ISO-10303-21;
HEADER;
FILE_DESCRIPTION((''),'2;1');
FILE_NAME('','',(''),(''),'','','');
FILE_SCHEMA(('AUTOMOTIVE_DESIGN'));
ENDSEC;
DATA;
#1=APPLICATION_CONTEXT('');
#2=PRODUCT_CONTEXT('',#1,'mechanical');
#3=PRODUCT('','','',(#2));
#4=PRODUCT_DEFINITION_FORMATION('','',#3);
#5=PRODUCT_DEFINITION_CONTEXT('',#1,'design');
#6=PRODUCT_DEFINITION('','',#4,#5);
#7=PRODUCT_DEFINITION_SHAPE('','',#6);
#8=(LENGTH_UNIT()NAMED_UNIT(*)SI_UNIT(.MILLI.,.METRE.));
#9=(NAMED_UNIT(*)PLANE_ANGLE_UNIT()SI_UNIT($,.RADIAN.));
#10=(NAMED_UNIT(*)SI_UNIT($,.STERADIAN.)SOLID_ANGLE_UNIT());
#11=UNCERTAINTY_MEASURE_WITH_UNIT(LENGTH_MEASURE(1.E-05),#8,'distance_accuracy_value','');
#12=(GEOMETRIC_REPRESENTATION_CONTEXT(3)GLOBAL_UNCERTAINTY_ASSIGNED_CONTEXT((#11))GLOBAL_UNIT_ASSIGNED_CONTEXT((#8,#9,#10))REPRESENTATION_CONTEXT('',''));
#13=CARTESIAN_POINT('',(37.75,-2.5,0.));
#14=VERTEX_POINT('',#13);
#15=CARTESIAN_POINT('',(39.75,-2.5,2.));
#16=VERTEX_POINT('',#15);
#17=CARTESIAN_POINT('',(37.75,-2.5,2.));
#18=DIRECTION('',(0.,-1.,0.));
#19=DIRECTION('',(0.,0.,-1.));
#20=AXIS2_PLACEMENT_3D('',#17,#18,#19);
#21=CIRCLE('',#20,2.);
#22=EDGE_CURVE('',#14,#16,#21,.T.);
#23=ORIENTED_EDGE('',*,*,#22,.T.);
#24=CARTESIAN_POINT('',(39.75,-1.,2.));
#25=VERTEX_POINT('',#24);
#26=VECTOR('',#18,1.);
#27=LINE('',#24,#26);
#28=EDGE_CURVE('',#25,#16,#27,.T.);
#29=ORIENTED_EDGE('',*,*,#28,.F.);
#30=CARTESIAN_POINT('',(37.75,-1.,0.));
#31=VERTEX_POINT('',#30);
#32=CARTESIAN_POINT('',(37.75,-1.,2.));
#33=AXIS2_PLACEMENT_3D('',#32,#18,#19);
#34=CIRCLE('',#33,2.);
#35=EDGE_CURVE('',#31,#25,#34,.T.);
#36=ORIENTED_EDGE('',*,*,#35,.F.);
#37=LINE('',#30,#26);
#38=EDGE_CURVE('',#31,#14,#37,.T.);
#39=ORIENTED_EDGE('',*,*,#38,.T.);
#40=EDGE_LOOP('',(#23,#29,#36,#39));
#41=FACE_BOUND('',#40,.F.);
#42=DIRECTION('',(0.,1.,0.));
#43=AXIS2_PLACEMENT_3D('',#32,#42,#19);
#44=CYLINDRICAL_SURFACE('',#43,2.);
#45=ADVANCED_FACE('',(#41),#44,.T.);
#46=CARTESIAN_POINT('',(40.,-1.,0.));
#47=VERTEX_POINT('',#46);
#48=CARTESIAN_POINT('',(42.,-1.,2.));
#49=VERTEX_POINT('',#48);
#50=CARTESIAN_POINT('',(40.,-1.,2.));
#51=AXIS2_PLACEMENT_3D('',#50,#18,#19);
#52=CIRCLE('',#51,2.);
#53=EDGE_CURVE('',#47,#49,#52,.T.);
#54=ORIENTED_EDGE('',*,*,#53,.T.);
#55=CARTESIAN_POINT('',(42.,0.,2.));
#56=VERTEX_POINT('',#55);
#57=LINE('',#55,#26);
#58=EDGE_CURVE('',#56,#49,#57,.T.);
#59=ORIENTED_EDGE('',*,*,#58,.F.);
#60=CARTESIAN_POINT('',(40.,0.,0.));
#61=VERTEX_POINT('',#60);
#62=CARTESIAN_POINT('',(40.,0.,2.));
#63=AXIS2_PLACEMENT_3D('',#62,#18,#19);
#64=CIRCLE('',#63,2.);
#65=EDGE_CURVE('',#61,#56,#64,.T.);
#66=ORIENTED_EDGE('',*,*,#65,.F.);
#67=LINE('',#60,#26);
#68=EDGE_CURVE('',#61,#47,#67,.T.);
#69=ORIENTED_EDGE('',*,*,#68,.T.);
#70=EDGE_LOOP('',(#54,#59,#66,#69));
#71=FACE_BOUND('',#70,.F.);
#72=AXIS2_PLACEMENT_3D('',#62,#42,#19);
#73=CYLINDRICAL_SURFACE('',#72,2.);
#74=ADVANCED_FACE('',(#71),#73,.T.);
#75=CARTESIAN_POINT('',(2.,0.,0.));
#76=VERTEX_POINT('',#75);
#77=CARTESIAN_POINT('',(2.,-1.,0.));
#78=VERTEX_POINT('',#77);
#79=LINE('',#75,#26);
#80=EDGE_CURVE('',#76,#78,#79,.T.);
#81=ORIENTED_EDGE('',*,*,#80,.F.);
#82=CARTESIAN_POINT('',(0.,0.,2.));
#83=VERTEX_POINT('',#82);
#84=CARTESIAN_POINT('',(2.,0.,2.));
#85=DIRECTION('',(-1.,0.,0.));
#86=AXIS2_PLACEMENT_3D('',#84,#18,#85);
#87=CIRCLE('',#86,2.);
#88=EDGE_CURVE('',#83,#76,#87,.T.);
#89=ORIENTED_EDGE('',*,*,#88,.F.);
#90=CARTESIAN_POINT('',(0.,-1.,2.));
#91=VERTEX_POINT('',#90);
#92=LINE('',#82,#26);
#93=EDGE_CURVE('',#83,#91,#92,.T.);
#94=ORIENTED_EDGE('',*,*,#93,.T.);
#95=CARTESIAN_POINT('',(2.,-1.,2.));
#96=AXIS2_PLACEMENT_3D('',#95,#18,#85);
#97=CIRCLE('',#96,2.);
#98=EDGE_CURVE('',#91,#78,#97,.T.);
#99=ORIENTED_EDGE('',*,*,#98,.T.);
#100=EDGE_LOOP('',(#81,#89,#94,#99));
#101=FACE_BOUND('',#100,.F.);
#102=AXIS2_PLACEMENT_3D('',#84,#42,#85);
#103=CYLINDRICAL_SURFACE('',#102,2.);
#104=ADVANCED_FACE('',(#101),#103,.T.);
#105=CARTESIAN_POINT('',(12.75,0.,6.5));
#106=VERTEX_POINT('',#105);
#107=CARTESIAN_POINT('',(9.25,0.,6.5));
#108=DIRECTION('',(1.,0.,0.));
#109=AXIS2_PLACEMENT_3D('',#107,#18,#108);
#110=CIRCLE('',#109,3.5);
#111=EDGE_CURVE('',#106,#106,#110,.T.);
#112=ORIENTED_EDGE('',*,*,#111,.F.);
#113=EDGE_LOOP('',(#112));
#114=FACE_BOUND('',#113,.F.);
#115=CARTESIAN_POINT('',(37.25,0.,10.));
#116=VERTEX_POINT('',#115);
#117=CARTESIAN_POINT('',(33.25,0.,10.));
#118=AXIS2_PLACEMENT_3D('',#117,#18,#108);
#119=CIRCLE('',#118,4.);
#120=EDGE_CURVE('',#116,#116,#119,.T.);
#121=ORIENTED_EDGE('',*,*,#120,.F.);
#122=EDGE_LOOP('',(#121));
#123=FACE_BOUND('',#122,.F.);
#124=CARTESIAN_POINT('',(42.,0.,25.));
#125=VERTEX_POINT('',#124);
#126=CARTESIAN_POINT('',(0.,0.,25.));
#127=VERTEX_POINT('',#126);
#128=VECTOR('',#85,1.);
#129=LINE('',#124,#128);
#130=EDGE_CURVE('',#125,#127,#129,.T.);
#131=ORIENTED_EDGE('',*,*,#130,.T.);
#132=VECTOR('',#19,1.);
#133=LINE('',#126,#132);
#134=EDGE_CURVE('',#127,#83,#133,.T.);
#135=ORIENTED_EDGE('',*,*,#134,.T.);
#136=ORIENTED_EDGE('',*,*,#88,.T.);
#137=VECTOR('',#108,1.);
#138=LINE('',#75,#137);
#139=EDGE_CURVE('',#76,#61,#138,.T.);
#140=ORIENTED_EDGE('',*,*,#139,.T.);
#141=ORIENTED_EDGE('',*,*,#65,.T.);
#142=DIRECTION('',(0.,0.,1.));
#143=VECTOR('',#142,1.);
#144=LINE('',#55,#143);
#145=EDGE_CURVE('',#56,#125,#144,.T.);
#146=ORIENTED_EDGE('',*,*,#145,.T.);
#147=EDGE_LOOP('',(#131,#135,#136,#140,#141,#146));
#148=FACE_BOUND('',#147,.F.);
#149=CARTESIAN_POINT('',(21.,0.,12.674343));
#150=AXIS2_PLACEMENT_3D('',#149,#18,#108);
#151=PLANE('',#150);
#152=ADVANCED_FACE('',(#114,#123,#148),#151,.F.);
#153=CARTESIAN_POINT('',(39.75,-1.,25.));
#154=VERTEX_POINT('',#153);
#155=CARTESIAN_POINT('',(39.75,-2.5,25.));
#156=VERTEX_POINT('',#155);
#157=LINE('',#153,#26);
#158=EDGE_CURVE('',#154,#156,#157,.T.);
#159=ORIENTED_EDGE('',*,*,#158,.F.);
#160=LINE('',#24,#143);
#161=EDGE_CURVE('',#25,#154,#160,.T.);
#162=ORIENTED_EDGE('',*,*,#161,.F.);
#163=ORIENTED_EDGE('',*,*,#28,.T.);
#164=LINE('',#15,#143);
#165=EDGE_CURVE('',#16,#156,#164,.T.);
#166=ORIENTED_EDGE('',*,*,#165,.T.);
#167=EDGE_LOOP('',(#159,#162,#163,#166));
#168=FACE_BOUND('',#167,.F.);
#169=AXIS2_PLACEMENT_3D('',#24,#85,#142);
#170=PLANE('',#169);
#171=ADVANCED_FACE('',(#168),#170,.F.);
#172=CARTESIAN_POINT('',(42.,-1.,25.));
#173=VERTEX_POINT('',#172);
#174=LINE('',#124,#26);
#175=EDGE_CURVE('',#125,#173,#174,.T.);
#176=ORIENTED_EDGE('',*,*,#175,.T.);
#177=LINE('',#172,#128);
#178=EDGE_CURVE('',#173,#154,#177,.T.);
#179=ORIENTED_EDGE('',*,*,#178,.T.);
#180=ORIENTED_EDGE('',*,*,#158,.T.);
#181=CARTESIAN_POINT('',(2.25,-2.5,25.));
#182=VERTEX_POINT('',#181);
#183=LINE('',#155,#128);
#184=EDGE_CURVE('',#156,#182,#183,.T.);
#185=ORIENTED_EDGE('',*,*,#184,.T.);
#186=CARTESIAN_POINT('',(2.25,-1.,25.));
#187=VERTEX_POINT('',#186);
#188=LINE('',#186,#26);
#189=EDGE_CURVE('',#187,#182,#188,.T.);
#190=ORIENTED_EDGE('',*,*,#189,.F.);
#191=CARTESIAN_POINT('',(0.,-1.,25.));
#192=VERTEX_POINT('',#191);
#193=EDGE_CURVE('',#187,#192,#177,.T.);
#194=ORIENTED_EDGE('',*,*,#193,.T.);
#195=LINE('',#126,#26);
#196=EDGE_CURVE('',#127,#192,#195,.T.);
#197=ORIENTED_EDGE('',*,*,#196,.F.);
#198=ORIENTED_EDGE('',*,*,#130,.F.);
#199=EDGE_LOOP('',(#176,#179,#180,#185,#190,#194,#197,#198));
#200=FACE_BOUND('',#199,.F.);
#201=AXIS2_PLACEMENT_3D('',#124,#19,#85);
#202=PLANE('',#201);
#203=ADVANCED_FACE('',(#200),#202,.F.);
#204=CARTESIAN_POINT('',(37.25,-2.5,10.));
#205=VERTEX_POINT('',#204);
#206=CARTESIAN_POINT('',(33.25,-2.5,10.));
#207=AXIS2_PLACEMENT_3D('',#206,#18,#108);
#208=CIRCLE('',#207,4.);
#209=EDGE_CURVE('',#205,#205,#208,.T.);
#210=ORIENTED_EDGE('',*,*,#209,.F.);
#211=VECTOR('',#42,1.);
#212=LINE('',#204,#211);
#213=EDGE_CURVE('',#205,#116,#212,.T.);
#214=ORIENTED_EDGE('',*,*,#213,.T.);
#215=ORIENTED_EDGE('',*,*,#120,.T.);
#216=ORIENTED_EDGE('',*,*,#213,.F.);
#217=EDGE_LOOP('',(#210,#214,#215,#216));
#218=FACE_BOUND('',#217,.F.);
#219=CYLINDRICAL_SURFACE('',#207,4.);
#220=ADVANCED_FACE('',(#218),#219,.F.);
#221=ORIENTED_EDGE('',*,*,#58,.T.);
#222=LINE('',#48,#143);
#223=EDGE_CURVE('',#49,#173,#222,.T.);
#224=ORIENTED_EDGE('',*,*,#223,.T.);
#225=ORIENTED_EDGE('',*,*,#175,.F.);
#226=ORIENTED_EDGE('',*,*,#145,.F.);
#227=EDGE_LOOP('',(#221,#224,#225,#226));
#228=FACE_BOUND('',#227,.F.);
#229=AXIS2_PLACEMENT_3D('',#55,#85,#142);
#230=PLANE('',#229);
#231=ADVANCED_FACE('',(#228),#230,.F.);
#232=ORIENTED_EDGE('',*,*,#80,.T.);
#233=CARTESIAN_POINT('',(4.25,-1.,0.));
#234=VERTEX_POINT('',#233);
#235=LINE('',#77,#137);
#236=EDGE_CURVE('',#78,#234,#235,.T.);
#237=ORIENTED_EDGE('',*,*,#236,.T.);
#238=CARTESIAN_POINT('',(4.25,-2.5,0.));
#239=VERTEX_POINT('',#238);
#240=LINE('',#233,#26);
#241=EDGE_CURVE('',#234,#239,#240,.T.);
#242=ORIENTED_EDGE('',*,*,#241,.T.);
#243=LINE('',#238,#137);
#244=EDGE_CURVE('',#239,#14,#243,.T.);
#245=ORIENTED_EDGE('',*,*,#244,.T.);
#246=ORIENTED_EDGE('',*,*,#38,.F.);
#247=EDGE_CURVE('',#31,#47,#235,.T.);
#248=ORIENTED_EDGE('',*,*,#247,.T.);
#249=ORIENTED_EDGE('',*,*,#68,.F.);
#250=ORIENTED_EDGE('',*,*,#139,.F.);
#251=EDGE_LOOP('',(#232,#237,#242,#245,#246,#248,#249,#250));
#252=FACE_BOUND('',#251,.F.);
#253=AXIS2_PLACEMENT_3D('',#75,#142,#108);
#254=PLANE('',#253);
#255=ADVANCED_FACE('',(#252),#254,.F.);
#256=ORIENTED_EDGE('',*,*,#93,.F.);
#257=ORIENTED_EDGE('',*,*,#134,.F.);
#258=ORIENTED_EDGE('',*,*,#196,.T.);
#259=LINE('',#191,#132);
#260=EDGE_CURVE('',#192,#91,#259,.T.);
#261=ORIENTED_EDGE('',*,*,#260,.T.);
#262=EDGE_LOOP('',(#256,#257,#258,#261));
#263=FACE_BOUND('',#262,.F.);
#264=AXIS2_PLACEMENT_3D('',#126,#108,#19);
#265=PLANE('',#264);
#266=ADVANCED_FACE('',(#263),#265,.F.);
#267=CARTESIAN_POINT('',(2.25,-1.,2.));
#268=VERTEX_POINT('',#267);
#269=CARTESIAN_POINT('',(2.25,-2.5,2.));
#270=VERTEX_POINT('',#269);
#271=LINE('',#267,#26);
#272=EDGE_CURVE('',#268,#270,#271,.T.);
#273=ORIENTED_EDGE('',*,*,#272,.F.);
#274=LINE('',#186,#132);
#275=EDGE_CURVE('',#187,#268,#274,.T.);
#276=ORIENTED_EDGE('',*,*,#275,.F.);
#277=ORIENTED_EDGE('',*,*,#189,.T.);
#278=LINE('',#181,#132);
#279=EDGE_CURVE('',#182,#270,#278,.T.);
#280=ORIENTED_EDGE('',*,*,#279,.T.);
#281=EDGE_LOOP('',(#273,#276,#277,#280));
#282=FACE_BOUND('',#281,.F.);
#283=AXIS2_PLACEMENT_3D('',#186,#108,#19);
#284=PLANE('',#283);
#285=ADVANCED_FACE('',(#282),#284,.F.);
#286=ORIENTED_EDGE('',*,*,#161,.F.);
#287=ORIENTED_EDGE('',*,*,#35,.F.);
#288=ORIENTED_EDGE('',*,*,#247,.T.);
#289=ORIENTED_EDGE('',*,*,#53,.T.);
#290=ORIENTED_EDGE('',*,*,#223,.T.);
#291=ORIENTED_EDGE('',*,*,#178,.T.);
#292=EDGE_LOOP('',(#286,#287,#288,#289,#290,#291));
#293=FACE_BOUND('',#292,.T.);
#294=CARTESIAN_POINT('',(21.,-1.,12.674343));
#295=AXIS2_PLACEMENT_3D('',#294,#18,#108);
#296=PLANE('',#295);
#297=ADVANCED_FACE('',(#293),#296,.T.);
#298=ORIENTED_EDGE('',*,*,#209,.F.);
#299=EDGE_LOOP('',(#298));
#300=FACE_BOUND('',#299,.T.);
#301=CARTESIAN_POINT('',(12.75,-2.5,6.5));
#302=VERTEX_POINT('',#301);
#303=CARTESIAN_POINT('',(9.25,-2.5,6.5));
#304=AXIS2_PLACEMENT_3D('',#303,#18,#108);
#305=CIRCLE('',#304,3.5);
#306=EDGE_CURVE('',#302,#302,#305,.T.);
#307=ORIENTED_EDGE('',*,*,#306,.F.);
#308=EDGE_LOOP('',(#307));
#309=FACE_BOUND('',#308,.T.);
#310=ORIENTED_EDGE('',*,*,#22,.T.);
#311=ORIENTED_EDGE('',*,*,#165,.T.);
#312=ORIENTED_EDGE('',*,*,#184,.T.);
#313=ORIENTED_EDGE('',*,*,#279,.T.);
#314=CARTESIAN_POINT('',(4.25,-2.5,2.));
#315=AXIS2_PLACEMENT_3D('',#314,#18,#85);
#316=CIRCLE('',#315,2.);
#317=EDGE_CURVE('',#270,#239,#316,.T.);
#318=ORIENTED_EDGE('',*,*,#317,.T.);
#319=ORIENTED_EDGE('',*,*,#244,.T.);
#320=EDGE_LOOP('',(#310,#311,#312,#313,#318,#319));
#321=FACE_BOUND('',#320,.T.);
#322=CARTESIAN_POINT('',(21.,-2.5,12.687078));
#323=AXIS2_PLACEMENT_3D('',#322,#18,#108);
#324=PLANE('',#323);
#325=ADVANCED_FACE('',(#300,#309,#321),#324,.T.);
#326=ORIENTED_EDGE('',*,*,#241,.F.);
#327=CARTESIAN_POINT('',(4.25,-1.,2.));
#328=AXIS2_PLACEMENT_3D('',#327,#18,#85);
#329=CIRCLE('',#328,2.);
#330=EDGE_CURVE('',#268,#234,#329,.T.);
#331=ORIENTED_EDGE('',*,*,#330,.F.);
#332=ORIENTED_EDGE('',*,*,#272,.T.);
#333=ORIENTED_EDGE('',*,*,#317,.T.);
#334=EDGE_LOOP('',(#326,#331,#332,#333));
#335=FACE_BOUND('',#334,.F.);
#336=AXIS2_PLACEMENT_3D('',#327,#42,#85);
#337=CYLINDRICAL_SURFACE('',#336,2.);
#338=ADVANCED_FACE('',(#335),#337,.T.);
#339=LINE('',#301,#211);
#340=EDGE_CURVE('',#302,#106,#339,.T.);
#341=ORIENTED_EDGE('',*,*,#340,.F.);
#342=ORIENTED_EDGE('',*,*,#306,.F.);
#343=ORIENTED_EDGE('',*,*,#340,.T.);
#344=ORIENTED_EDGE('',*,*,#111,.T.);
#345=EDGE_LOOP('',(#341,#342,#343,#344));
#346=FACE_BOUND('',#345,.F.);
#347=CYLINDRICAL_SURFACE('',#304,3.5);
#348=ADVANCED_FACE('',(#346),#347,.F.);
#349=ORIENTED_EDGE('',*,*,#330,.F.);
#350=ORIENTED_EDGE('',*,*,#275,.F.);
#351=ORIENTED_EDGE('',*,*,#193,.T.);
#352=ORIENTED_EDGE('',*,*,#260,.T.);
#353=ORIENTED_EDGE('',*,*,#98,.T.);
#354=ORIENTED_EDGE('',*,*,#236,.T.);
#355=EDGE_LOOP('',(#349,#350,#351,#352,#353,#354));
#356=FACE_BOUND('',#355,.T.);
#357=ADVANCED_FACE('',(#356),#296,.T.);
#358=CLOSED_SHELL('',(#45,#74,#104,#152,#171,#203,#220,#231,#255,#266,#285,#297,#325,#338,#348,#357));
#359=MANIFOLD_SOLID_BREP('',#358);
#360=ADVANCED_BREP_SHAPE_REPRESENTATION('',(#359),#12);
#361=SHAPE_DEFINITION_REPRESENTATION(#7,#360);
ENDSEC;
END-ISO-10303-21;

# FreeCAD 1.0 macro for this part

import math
import FreeCAD as App
import Part
import Sketcher
from FreeCAD import Vector

doc = App.newDocument("Part")
body = doc.addObject("PartDesign::Body", "Body")

# Sketch on XZ plane
sketch1 = body.newObject("Sketcher::SketchObject", "Sketch")
sketch1.AttachmentSupport = (doc.getObject("XZ_Plane"), [""])
sketch1.MapMode = "FlatFace"
sketch1.addGeometry([
    Part.ArcOfCircle(Part.Circle(Vector(2, 2, 0), Vector(0, 0, 1), 2), math.radians(180), math.radians(270)),  # 0
    Part.LineSegment(Vector(2, 0, 0), Vector(40, 0, 0)),  # 1
    Part.ArcOfCircle(Part.Circle(Vector(40, 2, 0), Vector(0, 0, 1), 2), math.radians(-90), math.radians(0)),  # 2
    Part.LineSegment(Vector(42, 2, 0), Vector(42, 25, 0)),  # 3
    Part.LineSegment(Vector(42, 25, 0), Vector(0, 25, 0)),  # 4
    Part.LineSegment(Vector(0, 25, 0), Vector(0, 2, 0)),  # 5
], False)
sketch1.addConstraint([
    Sketcher.Constraint("Tangent", 0, 2, 1, 1),
    Sketcher.Constraint("Tangent", 1, 2, 2, 1),
    Sketcher.Constraint("Tangent", 2, 2, 3, 1),
    Sketcher.Constraint("Coincident", 3, 2, 4, 1),
    Sketcher.Constraint("Coincident", 4, 2, 5, 1),
    Sketcher.Constraint("Tangent", 5, 2, 0, 1),
    Sketcher.Constraint("Horizontal", 1),
    Sketcher.Constraint("Vertical", 3),
    Sketcher.Constraint("Horizontal", 4),
    Sketcher.Constraint("Vertical", 5),
    Sketcher.Constraint("Equal", 0, 2),
    Sketcher.Constraint("PointOnObject", 0, 2, -1),
    Sketcher.Constraint("PointOnObject", 4, 2, -2),
    Sketcher.Constraint("Radius", 0, 2.0),
    Sketcher.Constraint("DistanceX", 1, 1, 1, 2, 38.0),
    Sketcher.Constraint("DistanceY", 3, 1, 3, 2, 23.0),
])
pad1 = body.newObject("PartDesign::Pad", "Pad")
pad1.Profile = sketch1
pad1.Length = 1

# Sketch on XZ plane
sketch2 = body.newObject("Sketcher::SketchObject", "Sketch001")
sketch2.AttachmentSupport = (doc.getObject("XZ_Plane"), [""])
sketch2.MapMode = "FlatFace"
sketch2.AttachmentOffset = App.Placement(Vector(0, 0, 1), App.Rotation())
sketch2.addGeometry([
    Part.LineSegment(Vector(39.8, 25, 0), Vector(2.2, 25, 0)),  # 0
    Part.LineSegment(Vector(2.2, 25, 0), Vector(2.2, 2, 0)),  # 1
    Part.ArcOfCircle(Part.Circle(Vector(4.2, 2, 0), Vector(0, 0, 1), 2), math.radians(180), math.radians(270)),  # 2
    Part.LineSegment(Vector(4.2, 0, 0), Vector(37.8, 0, 0)),  # 3
    Part.ArcOfCircle(Part.Circle(Vector(37.8, 2, 0), Vector(0, 0, 1), 2), math.radians(-90), math.radians(0)),  # 4
    Part.LineSegment(Vector(39.8, 2, 0), Vector(39.8, 25, 0)),  # 5
], False)
sketch2.addConstraint([
    Sketcher.Constraint("Coincident", 0, 2, 1, 1),
    Sketcher.Constraint("Tangent", 1, 2, 2, 1),
    Sketcher.Constraint("Tangent", 2, 2, 3, 1),
    Sketcher.Constraint("Tangent", 3, 2, 4, 1),
    Sketcher.Constraint("Tangent", 4, 2, 5, 1),
    Sketcher.Constraint("Coincident", 5, 2, 0, 1),
    Sketcher.Constraint("Horizontal", 0),
    Sketcher.Constraint("Vertical", 1),
    Sketcher.Constraint("Horizontal", 3),
    Sketcher.Constraint("Vertical", 5),
    Sketcher.Constraint("Equal", 2, 4),
    Sketcher.Constraint("PointOnObject", 2, 2, -1),
    Sketcher.Constraint("Radius", 2, 2.0),
    Sketcher.Constraint("DistanceY", 1, 2, 1, 1, 23.0),
    Sketcher.Constraint("DistanceX", 0, 2, 0, 1, 37.5),
    Sketcher.Constraint("DistanceX", -1, 1, 2, 3, 4.25),
])
pad2 = body.newObject("PartDesign::Pad", "Pad001")
pad2.Profile = sketch2
pad2.Length = 1.5

# Sketch on XZ plane
sketch3 = body.newObject("Sketcher::SketchObject", "Sketch002")
sketch3.AttachmentSupport = (doc.getObject("XZ_Plane"), [""])
sketch3.MapMode = "FlatFace"
sketch3.AttachmentOffset = App.Placement(Vector(0, 0, 2.5), App.Rotation())
sketch3.addGeometry([
    Part.Circle(Vector(33.2, 10, 0), Vector(0, 0, 1), 4),
    Part.Circle(Vector(9.2, 6.5, 0), Vector(0, 0, 1), 3.5),
], False)
sketch3.addConstraint([
    Sketcher.Constraint("Diameter", 0, 8.0),
    Sketcher.Constraint("Diameter", 1, 7.0),
    Sketcher.Constraint("DistanceY", -1, 1, 0, 3, 10.0),
    Sketcher.Constraint("DistanceX", 1, 3, 0, 3, 24.0),
    Sketcher.Constraint("DistanceY", -1, 1, 1, 3, 6.5),
    Sketcher.Constraint("DistanceX", -1, 1, 0, 3, 33.25),
])
pocket1 = body.newObject("PartDesign::Pocket", "Pocket")
pocket1.Profile = sketch3
pocket1.Type = "ThroughAll"

doc.recompute()
